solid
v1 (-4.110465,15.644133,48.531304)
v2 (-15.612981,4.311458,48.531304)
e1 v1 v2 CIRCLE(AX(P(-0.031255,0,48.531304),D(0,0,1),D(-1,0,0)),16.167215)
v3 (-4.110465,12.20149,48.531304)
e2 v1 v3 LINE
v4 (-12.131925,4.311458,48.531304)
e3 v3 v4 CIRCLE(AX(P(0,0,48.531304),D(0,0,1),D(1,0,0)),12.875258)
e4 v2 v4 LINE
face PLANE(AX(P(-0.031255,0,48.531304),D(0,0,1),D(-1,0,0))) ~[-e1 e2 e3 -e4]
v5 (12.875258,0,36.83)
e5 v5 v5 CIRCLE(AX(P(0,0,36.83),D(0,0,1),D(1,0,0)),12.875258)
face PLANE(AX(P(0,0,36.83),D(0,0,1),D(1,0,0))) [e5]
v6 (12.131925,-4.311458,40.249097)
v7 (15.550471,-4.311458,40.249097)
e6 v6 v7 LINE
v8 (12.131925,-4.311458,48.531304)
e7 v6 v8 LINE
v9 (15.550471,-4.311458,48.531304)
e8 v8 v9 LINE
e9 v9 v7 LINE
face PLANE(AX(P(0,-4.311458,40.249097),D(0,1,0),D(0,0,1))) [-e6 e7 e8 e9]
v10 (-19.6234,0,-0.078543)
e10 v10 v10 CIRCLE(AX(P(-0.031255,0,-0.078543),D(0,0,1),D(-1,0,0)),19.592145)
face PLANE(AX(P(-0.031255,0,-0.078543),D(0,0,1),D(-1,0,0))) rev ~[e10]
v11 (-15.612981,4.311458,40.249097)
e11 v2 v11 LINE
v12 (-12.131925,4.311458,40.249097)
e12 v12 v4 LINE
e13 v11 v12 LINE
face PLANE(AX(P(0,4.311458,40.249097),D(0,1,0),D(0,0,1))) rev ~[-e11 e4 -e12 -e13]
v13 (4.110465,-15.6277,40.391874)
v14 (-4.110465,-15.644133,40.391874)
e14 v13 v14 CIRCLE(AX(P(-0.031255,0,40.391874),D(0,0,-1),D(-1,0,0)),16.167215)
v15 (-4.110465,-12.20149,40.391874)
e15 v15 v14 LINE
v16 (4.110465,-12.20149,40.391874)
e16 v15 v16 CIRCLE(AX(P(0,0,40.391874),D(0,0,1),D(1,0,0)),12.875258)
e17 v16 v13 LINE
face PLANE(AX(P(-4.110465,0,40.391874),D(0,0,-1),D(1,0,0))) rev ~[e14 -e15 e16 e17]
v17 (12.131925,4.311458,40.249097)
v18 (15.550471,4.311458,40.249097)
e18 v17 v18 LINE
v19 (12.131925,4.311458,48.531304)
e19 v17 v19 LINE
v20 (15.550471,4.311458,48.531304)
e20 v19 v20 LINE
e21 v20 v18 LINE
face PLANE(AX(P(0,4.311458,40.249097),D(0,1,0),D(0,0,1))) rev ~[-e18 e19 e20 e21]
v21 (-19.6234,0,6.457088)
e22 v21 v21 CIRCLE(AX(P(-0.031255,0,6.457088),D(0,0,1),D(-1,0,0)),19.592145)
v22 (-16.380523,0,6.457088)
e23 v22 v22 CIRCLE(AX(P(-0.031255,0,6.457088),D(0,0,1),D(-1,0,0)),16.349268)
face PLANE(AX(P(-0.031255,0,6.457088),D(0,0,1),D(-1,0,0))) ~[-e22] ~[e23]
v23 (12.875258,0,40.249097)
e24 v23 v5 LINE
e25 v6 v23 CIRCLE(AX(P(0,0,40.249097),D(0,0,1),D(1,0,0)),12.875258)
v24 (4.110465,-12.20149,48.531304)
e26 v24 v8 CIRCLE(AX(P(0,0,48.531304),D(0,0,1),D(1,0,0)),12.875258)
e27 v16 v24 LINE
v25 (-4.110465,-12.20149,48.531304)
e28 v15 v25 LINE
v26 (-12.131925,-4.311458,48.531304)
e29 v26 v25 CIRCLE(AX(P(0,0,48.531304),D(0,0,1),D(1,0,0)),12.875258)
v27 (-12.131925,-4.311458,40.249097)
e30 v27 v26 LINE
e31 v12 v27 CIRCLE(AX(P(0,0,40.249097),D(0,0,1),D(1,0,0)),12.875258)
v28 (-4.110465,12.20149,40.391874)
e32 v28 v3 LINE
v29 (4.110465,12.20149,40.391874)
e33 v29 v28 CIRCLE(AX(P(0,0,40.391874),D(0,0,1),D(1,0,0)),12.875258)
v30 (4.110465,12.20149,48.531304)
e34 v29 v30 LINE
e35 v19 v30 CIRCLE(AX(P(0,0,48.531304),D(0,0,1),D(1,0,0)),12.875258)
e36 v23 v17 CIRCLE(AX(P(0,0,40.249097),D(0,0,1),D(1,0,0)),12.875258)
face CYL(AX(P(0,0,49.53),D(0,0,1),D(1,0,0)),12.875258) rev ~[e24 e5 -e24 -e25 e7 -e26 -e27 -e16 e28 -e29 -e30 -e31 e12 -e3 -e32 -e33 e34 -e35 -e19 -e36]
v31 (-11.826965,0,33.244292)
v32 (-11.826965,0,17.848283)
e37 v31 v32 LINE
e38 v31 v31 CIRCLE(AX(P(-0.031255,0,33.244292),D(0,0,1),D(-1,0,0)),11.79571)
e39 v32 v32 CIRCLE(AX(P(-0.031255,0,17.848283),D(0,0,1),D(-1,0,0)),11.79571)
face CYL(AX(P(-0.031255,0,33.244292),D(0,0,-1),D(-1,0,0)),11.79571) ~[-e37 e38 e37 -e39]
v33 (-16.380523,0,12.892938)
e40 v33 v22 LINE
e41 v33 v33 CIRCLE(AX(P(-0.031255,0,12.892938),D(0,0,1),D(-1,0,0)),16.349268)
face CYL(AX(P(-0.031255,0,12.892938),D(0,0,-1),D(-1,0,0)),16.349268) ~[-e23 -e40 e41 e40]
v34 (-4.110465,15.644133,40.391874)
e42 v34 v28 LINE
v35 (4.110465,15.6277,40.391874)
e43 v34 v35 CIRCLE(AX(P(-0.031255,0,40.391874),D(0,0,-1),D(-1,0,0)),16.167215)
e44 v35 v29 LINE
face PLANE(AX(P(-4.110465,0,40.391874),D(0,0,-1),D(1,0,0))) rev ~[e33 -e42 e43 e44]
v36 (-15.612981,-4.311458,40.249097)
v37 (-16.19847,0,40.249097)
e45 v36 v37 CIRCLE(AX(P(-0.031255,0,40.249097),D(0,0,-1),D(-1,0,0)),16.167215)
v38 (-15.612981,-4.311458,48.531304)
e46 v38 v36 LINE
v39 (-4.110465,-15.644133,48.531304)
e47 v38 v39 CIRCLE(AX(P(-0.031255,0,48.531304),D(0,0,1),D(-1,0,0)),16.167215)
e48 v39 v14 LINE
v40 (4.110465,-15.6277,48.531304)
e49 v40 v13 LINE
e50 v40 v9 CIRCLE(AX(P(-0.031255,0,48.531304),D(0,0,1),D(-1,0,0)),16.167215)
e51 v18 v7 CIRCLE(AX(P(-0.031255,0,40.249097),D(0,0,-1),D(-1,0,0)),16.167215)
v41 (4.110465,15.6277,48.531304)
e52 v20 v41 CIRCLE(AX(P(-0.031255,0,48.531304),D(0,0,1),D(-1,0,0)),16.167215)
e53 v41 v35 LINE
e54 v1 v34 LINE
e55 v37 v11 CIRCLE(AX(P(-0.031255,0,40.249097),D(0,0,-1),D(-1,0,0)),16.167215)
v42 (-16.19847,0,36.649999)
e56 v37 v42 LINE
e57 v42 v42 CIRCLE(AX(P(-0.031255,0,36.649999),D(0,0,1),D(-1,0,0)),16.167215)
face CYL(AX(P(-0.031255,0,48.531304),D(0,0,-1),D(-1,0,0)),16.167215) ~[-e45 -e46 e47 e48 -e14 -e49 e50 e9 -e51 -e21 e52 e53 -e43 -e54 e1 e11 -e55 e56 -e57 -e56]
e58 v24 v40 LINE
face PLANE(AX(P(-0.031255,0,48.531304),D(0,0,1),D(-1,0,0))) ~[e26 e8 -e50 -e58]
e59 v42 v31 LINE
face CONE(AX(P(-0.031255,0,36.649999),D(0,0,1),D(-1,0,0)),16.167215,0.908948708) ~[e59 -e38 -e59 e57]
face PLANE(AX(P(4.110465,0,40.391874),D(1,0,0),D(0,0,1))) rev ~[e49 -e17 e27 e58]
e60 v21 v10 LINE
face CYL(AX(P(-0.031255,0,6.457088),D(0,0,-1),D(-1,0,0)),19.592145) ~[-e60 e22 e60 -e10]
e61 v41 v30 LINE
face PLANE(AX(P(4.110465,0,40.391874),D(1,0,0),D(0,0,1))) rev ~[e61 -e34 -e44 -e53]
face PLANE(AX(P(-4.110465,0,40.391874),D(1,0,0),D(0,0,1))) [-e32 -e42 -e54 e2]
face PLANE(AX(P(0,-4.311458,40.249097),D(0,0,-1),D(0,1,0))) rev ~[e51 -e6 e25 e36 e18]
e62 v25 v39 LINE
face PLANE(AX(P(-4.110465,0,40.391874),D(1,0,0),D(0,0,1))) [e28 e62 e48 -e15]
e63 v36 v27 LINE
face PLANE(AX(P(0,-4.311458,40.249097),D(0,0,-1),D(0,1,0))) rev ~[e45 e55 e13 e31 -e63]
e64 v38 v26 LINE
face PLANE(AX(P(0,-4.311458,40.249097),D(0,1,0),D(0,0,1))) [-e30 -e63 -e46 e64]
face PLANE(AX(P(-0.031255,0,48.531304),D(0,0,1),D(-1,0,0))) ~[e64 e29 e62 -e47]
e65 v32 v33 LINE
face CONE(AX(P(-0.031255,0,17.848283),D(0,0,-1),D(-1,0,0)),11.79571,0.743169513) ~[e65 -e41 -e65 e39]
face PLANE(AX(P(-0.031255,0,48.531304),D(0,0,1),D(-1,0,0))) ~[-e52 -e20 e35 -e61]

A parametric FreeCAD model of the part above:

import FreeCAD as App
import Part
import Sketcher
Q = App.Units.Quantity


def add_polygon(sketch, points):
    """Adds a closed chain of lines whose ends are joined by coincident constraints."""
    first, n = sketch.GeometryCount, len(points)
    for a, b in zip(points, points[1:] + points[:1]):
        sketch.addGeometry(Part.LineSegment(App.Vector(*a, 0), App.Vector(*b, 0)), False)
    for i in range(n):
        sketch.addConstraint(Sketcher.Constraint("Coincident", first + i, 2, first + (i + 1) % n, 1))

doc = App.newDocument("Part")
body = doc.addObject("PartDesign::Body", "Body")

sketch1 = body.newObject("Sketcher::SketchObject", "Sketch")
sketch1.AttachmentSupport = (doc.getObject("XZ_Plane"), [""])
sketch1.MapMode = "FlatFace"
add_polygon(sketch1, [(-34.6, 4.4), (-34.6, -2.1), (-15, -2.1), (-15, 46.5), (-20.4, 46.5), (-20.4, 42.8), (-24.7, 42.8), (-24.7, 46.5), (-31.2, 46.5), (-31.2, 34.6), (-26.8, 31.2), (-26.8, 15.8), (-31.4, 10.9), (-31.4, 4.4)])
sketch1.addGeometry(Part.LineSegment(App.Vector(-15, -2.1, 0), App.Vector(-15, 46.5, 0)), True)
sketch1.addConstraint(Sketcher.Constraint("Vertical", 0))
sketch1.addConstraint(Sketcher.Constraint("Horizontal", 1))
sketch1.addConstraint(Sketcher.Constraint("Vertical", 2))
sketch1.addConstraint(Sketcher.Constraint("Horizontal", 3))
sketch1.addConstraint(Sketcher.Constraint("Vertical", 4))
sketch1.addConstraint(Sketcher.Constraint("Horizontal", 5))
sketch1.addConstraint(Sketcher.Constraint("Vertical", 6))
sketch1.addConstraint(Sketcher.Constraint("Horizontal", 7))
sketch1.addConstraint(Sketcher.Constraint("Vertical", 8))
sketch1.addConstraint(Sketcher.Constraint("Vertical", 10))
sketch1.addConstraint(Sketcher.Constraint("Vertical", 12))
sketch1.addConstraint(Sketcher.Constraint("Horizontal", 13))
sketch1.addConstraint(Sketcher.Constraint("Vertical", 14))
sketch1.addConstraint(Sketcher.Constraint("Coincident", 14, 1, 1, 2))
sketch1.addConstraint(Sketcher.Constraint("Horizontal", 3, 2, 6, 2))
sketch1.addConstraint(Sketcher.Constraint("Horizontal", 7, 2, 14, 2))
sketch1.addConstraint(Sketcher.Constraint("DistanceX", 3, 2, 3, 1, Q("5.412462 mm")))
sketch1.addConstraint(Sketcher.Constraint("DistanceX", 7, 2, 7, 1, Q("6.52142 mm")))
sketch1.addConstraint(Sketcher.Constraint("DistanceY", 0, 2, 0, 1, Q("6.535631 mm")))
sketch1.addConstraint(Sketcher.Constraint("DistanceY", 4, 2, 4, 1, Q("3.668889 mm")))
sketch1.addConstraint(Sketcher.Constraint("DistanceY", 10, 2, 10, 1, Q("15.396009 mm")))
sketch1.addConstraint(Sketcher.Constraint("DistanceY", 12, 2, 12, 1, Q("6.43585 mm")))
sketch1.addConstraint(Sketcher.Constraint("DistanceX", 0, 2, -1, 1, Q("34.6094 mm")))
sketch1.addConstraint(Sketcher.Constraint("DistanceY", -1, 1, 8, 2, Q("34.617999 mm")))
sketch1.addConstraint(Sketcher.Constraint("Distance", 9, Q("5.541561 mm")))
sketch1.addConstraint(Sketcher.Constraint("Distance", 11, Q("6.729809 mm")))
sketch1.addConstraint(Sketcher.Constraint("DistanceX", 1, 1, 1, 2, Q("19.592145 mm")))
sketch1.addConstraint(Sketcher.Constraint("DistanceX", 5, 2, 5, 1, Q("4.233333 mm")))
sketch1.addConstraint(Sketcher.Constraint("DistanceX", 13, 2, 13, 1, Q("3.242877 mm")))
sketch1.addConstraint(Sketcher.Constraint("DistanceY", 2, 1, 2, 2, Q("48.609847 mm")))
sketch1.addConstraint(Sketcher.Constraint("DistanceY", 8, 2, 8, 1, Q("11.881305 mm")))
revolution = body.newObject("PartDesign::Revolution", "Revolution")
revolution.Profile = sketch1
revolution.ReferenceAxis = (sketch1, ["Axis0"])
revolution.Angle = 360
body2 = doc.addObject("PartDesign::Body", "Body001")
doc.recompute()

body.Placement = App.Placement(App.Vector(14.986, 0, 2.032), App.Rotation(App.Vector(0, 0, 1), 0))
boolean = body2.newObject("PartDesign::Boolean", "Boolean")
boolean.Type = "Fuse"
boolean.addObjects([body])

sketch2 = body2.newObject("Sketcher::SketchObject", "Sketch001")
sketch2.AttachmentSupport = (doc.getObject("XY_Plane001"), [""])
sketch2.MapMode = "FlatFace"
sketch2.AttachmentOffset = App.Placement(App.Vector(0, 0, 1.95 * 25.4), App.Rotation())
sketch2.addGeometry(Part.Circle(App.Vector(0, 0, 0), App.Vector(0, 0, 1), 13), False)
sketch2.addConstraint(Sketcher.Constraint("Coincident", 0, 3, -1, 1))
sketch2.addConstraint(Sketcher.Constraint("Diameter", 0, Q("1.0137998 in")))
pocket1 = body2.newObject("PartDesign::Pocket", "Pocket")
pocket1.Profile = sketch2
pocket1.Length = Q("0.5 in")

sketch3 = body2.newObject("Sketcher::SketchObject", "Sketch002")
sketch3.AttachmentSupport = (doc.getObject("XZ_Plane001"), [""])
sketch3.MapMode = "FlatFace"
add_polygon(sketch3, [(-4, 59), (-4, 40), (4, 40), (4, 59)])
sketch3.addConstraint(Sketcher.Constraint("Vertical", 0))
sketch3.addConstraint(Sketcher.Constraint("Horizontal", 1))
sketch3.addConstraint(Sketcher.Constraint("Vertical", 2))
sketch3.addConstraint(Sketcher.Constraint("Horizontal", 3))
sketch3.addConstraint(Sketcher.Constraint("DistanceX", 1, 1, 1, 2, Q("8.22093 mm")))
sketch3.addConstraint(Sketcher.Constraint("DistanceY", 0, 2, 0, 1, Q("18.559195 mm")))
sketch3.addConstraint(Sketcher.Constraint("DistanceY", -1, 1, 2, 2, Q("58.951068 mm")))
sketch3.addConstraint(Sketcher.Constraint("DistanceX", 0, 2, -1, 1, Q("4.110465 mm")))
pocket2 = body2.newObject("PartDesign::Pocket", "Pocket001")
pocket2.Profile = sketch3
pocket2.Length = Q("2 in")
pocket2.Midplane = True

sketch4 = body2.newObject("Sketcher::SketchObject", "Sketch003")
sketch4.AttachmentSupport = (doc.getObject("YZ_Plane001"), [""])
sketch4.MapMode = "FlatFace"
add_polygon(sketch4, [(-4, 59), (-4, 40), (4, 40), (4, 59)])
sketch4.addConstraint(Sketcher.Constraint("Vertical", 0))
sketch4.addConstraint(Sketcher.Constraint("Horizontal", 1))
sketch4.addConstraint(Sketcher.Constraint("Vertical", 2))
sketch4.addConstraint(Sketcher.Constraint("Horizontal", 3))
sketch4.addConstraint(Sketcher.Constraint("DistanceX", 1, 1, 1, 2, Q("8.622916 mm")))
sketch4.addConstraint(Sketcher.Constraint("DistanceY", 0, 2, 0, 1, Q("18.559195 mm")))
sketch4.addConstraint(Sketcher.Constraint("DistanceX", 0, 2, -1, 1, Q("4.311458 mm")))
sketch4.addConstraint(Sketcher.Constraint("DistanceY", -1, 1, 0, 2, Q("40.249097 mm")))
pocket3 = body2.newObject("PartDesign::Pocket", "Pocket002")
pocket3.Profile = sketch4
pocket3.Length = Q("2 in")
pocket3.Midplane = True

doc.recompute()
